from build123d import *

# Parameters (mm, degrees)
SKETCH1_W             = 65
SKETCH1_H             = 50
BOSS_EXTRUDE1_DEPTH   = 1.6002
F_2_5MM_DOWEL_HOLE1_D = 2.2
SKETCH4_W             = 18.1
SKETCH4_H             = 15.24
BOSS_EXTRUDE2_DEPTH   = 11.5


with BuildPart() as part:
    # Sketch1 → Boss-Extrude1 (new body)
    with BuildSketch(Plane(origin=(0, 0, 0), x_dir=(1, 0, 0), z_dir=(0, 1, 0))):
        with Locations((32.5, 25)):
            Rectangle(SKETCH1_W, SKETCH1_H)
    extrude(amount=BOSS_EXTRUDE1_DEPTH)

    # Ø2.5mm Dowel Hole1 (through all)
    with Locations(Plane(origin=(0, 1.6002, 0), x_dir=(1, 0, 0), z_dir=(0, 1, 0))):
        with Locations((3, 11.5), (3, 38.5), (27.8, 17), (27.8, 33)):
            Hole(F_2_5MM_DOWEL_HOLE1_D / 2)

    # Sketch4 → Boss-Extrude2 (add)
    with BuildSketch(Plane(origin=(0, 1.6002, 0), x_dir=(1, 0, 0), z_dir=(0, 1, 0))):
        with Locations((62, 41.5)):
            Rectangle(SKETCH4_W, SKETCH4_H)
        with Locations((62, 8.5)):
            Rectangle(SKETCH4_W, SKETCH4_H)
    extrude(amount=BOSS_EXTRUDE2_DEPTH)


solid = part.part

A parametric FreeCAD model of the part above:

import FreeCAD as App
import Part
import Sketcher
from FreeCAD import Vector

doc = App.newDocument("Part")
body = doc.addObject("PartDesign::Body", "Body")

# Sketch on XZ plane
sketch1 = body.newObject("Sketcher::SketchObject", "Sketch")
sketch1.AttachmentSupport = (doc.getObject("XZ_Plane"), [""])
sketch1.MapMode = "FlatFace"
sketch1.addGeometry([
    Part.LineSegment(Vector(0, -50, 0), Vector(0, 0, 0)),
    Part.LineSegment(Vector(0, 0, 0), Vector(65, 0, 0)),
    Part.LineSegment(Vector(65, 0, 0), Vector(65, -50, 0)),
    Part.LineSegment(Vector(65, -50, 0), Vector(0, -50, 0)),
], False)
sketch1.addConstraint([
    Sketcher.Constraint("Coincident", 0, 2, 1, 1),
    Sketcher.Constraint("Coincident", 1, 2, 2, 1),
    Sketcher.Constraint("Coincident", 2, 2, 3, 1),
    Sketcher.Constraint("Coincident", 3, 2, 0, 1),
    Sketcher.Constraint("Vertical", 0),
    Sketcher.Constraint("Horizontal", 1),
    Sketcher.Constraint("Vertical", 2),
    Sketcher.Constraint("Horizontal", 3),
    Sketcher.Constraint("Coincident", 0, 2, -1, 1),
    Sketcher.Constraint("DistanceX", 1, 1, 1, 2, 65.0),
    Sketcher.Constraint("DistanceY", 0, 1, 0, 2, 50.0),
])
pad1 = body.newObject("PartDesign::Pad", "Pad")
pad1.Profile = sketch1
pad1.Length = 1.6002
pad1.Reversed = True

# Sketch on XZ plane
sketch2 = body.newObject("Sketcher::SketchObject", "Sketch001")
sketch2.AttachmentSupport = (doc.getObject("XZ_Plane"), [""])
sketch2.MapMode = "FlatFace"
sketch2.AttachmentOffset = App.Placement(Vector(0, 0, -1.6002), App.Rotation())
sketch2.addGeometry([
    Part.Circle(Vector(3, -11.5, 0), Vector(0, 0, 1), 1.1),
    Part.Circle(Vector(3, -38.5, 0), Vector(0, 0, 1), 1.1),
    Part.Circle(Vector(27.8, -17, 0), Vector(0, 0, 1), 1.1),
    Part.Circle(Vector(27.8, -33, 0), Vector(0, 0, 1), 1.1),
], False)
sketch2.addConstraint([
    Sketcher.Constraint("Equal", 0, 1),
    Sketcher.Constraint("Equal", 1, 2),
    Sketcher.Constraint("Equal", 2, 3),
    Sketcher.Constraint("Vertical", 0, 3, 1, 3),
    Sketcher.Constraint("Vertical", 2, 3, 3, 3),
    Sketcher.Constraint("Diameter", 0, 2.2),
    Sketcher.Constraint("DistanceX", -1, 1, 0, 3, 3.0),
    Sketcher.Constraint("DistanceY", 2, 3, -1, 1, 17.0),
    Sketcher.Constraint("DistanceY", 3, 3, -1, 1, 33.0),
    Sketcher.Constraint("DistanceY", 1, 3, 0, 3, 27.0),
    Sketcher.Constraint("DistanceY", 0, 3, -1, 1, 11.5),
    Sketcher.Constraint("DistanceX", -1, 1, 2, 3, 27.8),
])
doc.recompute()
hole = body.newObject("PartDesign::Hole", "Hole")
hole.Profile = sketch2
hole.ThreadType = "None"
hole.Diameter = 2.2
hole.DepthType = "ThroughAll"
hole.Reversed = True

# Sketch on XZ plane
sketch3 = body.newObject("Sketcher::SketchObject", "Sketch002")
sketch3.AttachmentSupport = (doc.getObject("XZ_Plane"), [""])
sketch3.MapMode = "FlatFace"
sketch3.AttachmentOffset = App.Placement(Vector(0, 0, -1.6002), App.Rotation())
sketch3.addGeometry([
    Part.LineSegment(Vector(53, -49, 0), Vector(53, -34, 0)),  # 0
    Part.LineSegment(Vector(53, -34, 0), Vector(71, -34, 0)),  # 1
    Part.LineSegment(Vector(71, -34, 0), Vector(71, -49, 0)),  # 2
    Part.LineSegment(Vector(71, -49, 0), Vector(53, -49, 0)),  # 3
    Part.LineSegment(Vector(53, -16, 0), Vector(53, -1, 0)),  # 4
    Part.LineSegment(Vector(53, -1, 0), Vector(71, -1, 0)),  # 5
    Part.LineSegment(Vector(71, -1, 0), Vector(71, -16, 0)),  # 6
    Part.LineSegment(Vector(71, -16, 0), Vector(53, -16, 0)),  # 7
], False)
sketch3.addConstraint([
    Sketcher.Constraint("Coincident", 0, 2, 1, 1),
    Sketcher.Constraint("Coincident", 1, 2, 2, 1),
    Sketcher.Constraint("Coincident", 2, 2, 3, 1),
    Sketcher.Constraint("Coincident", 3, 2, 0, 1),
    Sketcher.Constraint("Coincident", 4, 2, 5, 1),
    Sketcher.Constraint("Coincident", 5, 2, 6, 1),
    Sketcher.Constraint("Coincident", 6, 2, 7, 1),
    Sketcher.Constraint("Coincident", 7, 2, 4, 1),
    Sketcher.Constraint("Vertical", 0),
    Sketcher.Constraint("Horizontal", 1),
    Sketcher.Constraint("Vertical", 2),
    Sketcher.Constraint("Horizontal", 3),
    Sketcher.Constraint("Vertical", 4),
    Sketcher.Constraint("Horizontal", 5),
    Sketcher.Constraint("Vertical", 6),
    Sketcher.Constraint("Horizontal", 7),
    Sketcher.Constraint("Vertical", 3, 2, 4, 2),
    Sketcher.Constraint("Vertical", 2, 2, 5, 2),
    Sketcher.Constraint("Equal", 2, 4),
    Sketcher.Constraint("DistanceX", 1, 1, 1, 2, 18.1),
    Sketcher.Constraint("DistanceY", 0, 2, 4, 2, 33.0),
    Sketcher.Constraint("DistanceY", 0, 1, 0, 2, 15.24),
    Sketcher.Constraint("DistanceX", -1, 1, 0, 2, 52.95),
    Sketcher.Constraint("DistanceY", 0, 2, -1, 1, 33.88),
])
pad2 = body.newObject("PartDesign::Pad", "Pad001")
pad2.Profile = sketch3
pad2.Length = 11.5
pad2.Reversed = True

doc.recompute()
